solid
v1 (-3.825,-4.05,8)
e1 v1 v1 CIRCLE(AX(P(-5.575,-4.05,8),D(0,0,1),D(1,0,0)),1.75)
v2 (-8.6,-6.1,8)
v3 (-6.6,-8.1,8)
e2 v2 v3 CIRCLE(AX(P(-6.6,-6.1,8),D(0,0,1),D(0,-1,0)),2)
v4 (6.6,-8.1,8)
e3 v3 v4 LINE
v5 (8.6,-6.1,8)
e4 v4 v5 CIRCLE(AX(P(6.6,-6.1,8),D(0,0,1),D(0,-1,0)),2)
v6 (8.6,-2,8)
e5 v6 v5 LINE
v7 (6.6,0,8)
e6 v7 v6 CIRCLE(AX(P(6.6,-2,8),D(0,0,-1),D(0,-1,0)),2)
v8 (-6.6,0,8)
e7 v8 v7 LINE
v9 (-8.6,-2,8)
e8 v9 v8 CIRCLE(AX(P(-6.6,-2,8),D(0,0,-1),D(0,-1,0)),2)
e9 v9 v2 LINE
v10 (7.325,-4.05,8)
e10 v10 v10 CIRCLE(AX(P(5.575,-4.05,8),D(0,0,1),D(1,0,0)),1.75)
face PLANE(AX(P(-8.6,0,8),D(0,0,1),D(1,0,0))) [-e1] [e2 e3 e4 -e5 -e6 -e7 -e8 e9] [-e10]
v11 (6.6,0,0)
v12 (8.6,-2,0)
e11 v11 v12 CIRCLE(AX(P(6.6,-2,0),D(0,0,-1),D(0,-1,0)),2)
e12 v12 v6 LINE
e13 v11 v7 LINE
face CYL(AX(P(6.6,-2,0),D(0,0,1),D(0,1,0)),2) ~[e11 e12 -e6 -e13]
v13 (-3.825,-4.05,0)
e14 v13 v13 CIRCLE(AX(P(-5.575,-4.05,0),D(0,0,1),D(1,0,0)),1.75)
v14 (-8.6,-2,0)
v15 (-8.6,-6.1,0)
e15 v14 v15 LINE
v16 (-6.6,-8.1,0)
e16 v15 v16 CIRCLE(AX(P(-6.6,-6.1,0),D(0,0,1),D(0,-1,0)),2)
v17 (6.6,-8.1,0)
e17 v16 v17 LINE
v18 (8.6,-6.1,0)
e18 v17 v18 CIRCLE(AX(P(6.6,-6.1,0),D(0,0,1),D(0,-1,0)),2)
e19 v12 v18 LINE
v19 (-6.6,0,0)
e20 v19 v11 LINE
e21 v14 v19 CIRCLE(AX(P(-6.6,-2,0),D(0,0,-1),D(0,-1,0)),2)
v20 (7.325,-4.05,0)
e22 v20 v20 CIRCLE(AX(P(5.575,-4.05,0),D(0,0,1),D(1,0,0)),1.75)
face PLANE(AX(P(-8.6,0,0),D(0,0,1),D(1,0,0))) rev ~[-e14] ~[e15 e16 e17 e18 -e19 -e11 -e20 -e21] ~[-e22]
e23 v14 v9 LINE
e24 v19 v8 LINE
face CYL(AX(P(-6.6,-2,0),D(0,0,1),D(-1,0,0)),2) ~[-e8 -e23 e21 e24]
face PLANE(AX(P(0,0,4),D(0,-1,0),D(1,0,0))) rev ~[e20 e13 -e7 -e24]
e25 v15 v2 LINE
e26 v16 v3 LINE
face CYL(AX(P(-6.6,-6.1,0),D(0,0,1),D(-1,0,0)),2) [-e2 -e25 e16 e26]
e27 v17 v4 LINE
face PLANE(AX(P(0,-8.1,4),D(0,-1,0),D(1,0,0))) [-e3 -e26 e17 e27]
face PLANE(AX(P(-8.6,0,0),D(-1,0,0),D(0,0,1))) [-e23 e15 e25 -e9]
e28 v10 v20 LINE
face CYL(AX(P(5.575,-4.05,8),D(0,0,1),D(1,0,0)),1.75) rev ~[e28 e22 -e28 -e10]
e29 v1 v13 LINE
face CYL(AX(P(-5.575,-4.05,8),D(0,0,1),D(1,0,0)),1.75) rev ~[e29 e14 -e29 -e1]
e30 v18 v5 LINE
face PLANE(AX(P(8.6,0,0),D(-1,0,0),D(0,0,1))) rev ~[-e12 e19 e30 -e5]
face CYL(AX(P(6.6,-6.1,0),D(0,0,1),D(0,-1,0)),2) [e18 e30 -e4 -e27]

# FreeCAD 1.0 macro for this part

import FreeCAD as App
import Part
import Sketcher


def edges_at(feature, points):
    """Names of the edges that pass closest to the given points."""
    edges = feature.Shape.Edges
    near = lambda p: min(range(len(edges)), key=lambda i: edges[i].distToShape(Part.Vertex(*p))[0])
    return sorted({f"Edge{near(p) + 1}" for p in points})


def add_polygon(sketch, points):
    """Adds a closed chain of lines whose ends are joined by coincident constraints."""
    first, n = sketch.GeometryCount, len(points)
    for a, b in zip(points, points[1:] + points[:1]):
        sketch.addGeometry(Part.LineSegment(App.Vector(*a, 0), App.Vector(*b, 0)), False)
    for i in range(n):
        sketch.addConstraint(Sketcher.Constraint("Coincident", first + i, 2, first + (i + 1) % n, 1))

doc = App.newDocument("Part")
body = doc.addObject("PartDesign::Body", "Body")

sketch1 = body.newObject("Sketcher::SketchObject", "Sketch")
sketch1.AttachmentSupport = (doc.getObject("XZ_Plane"), [""])
sketch1.MapMode = "FlatFace"
add_polygon(sketch1, [(-9, 8), (-9, 0), (9, 0), (9, 8)])
sketch1.addConstraint([
    Sketcher.Constraint("Vertical", 0),
    Sketcher.Constraint("Horizontal", 1),
    Sketcher.Constraint("Vertical", 2),
    Sketcher.Constraint("Horizontal", 3),
    Sketcher.Constraint("Symmetric", 0, 2, 1, 2, -1, 1),
    Sketcher.Constraint("DistanceY", 0, 2, 0, 1, 8.0),
    Sketcher.Constraint("DistanceX", 1, 1, 1, 2, 17.2),
])
pad1 = body.newObject("PartDesign::Pad", "Pad")
pad1.Profile = sketch1
pad1.Length = 8.1

sketch2 = body.newObject("Sketcher::SketchObject", "Sketch001")
sketch2.AttachmentSupport = (doc.getObject("XY_Plane"), [""])
sketch2.MapMode = "FlatFace"
sketch2.AttachmentOffset = App.Placement(App.Vector(0, 0, 8), App.Rotation())
sketch2.addGeometry([
    Part.Circle(App.Vector(-5.6, -4, 0), App.Vector(0, 0, 1), 1.8),
    Part.Circle(App.Vector(5.6, -4, 0), App.Vector(0, 0, 1), 1.8),
], False)
sketch2.addConstraint([
    Sketcher.Constraint("Equal", 0, 1),
    Sketcher.Constraint("Symmetric", 0, 3, 1, 3, -2),
    Sketcher.Constraint("Diameter", 0, 3.5),
    Sketcher.Constraint("DistanceY", 0, 3, -1, 1, 4.05),
    Sketcher.Constraint("DistanceX", 0, 3, 1, 3, 11.15),
])
pocket1 = body.newObject("PartDesign::Pocket", "Pocket")
pocket1.Profile = sketch2
pocket1.Type = "ThroughAll"
doc.recompute()

fillet = body.newObject("PartDesign::Fillet", "Fillet")
fillet.Base = (pocket1, edges_at(pocket1, [
    (-8.6, -8.1, 4),
    (8.6, -8.1, 4),
    (8.6, 0, 4),
    (-8.6, 0, 4),
]))
fillet.Radius = 2

doc.recompute()
